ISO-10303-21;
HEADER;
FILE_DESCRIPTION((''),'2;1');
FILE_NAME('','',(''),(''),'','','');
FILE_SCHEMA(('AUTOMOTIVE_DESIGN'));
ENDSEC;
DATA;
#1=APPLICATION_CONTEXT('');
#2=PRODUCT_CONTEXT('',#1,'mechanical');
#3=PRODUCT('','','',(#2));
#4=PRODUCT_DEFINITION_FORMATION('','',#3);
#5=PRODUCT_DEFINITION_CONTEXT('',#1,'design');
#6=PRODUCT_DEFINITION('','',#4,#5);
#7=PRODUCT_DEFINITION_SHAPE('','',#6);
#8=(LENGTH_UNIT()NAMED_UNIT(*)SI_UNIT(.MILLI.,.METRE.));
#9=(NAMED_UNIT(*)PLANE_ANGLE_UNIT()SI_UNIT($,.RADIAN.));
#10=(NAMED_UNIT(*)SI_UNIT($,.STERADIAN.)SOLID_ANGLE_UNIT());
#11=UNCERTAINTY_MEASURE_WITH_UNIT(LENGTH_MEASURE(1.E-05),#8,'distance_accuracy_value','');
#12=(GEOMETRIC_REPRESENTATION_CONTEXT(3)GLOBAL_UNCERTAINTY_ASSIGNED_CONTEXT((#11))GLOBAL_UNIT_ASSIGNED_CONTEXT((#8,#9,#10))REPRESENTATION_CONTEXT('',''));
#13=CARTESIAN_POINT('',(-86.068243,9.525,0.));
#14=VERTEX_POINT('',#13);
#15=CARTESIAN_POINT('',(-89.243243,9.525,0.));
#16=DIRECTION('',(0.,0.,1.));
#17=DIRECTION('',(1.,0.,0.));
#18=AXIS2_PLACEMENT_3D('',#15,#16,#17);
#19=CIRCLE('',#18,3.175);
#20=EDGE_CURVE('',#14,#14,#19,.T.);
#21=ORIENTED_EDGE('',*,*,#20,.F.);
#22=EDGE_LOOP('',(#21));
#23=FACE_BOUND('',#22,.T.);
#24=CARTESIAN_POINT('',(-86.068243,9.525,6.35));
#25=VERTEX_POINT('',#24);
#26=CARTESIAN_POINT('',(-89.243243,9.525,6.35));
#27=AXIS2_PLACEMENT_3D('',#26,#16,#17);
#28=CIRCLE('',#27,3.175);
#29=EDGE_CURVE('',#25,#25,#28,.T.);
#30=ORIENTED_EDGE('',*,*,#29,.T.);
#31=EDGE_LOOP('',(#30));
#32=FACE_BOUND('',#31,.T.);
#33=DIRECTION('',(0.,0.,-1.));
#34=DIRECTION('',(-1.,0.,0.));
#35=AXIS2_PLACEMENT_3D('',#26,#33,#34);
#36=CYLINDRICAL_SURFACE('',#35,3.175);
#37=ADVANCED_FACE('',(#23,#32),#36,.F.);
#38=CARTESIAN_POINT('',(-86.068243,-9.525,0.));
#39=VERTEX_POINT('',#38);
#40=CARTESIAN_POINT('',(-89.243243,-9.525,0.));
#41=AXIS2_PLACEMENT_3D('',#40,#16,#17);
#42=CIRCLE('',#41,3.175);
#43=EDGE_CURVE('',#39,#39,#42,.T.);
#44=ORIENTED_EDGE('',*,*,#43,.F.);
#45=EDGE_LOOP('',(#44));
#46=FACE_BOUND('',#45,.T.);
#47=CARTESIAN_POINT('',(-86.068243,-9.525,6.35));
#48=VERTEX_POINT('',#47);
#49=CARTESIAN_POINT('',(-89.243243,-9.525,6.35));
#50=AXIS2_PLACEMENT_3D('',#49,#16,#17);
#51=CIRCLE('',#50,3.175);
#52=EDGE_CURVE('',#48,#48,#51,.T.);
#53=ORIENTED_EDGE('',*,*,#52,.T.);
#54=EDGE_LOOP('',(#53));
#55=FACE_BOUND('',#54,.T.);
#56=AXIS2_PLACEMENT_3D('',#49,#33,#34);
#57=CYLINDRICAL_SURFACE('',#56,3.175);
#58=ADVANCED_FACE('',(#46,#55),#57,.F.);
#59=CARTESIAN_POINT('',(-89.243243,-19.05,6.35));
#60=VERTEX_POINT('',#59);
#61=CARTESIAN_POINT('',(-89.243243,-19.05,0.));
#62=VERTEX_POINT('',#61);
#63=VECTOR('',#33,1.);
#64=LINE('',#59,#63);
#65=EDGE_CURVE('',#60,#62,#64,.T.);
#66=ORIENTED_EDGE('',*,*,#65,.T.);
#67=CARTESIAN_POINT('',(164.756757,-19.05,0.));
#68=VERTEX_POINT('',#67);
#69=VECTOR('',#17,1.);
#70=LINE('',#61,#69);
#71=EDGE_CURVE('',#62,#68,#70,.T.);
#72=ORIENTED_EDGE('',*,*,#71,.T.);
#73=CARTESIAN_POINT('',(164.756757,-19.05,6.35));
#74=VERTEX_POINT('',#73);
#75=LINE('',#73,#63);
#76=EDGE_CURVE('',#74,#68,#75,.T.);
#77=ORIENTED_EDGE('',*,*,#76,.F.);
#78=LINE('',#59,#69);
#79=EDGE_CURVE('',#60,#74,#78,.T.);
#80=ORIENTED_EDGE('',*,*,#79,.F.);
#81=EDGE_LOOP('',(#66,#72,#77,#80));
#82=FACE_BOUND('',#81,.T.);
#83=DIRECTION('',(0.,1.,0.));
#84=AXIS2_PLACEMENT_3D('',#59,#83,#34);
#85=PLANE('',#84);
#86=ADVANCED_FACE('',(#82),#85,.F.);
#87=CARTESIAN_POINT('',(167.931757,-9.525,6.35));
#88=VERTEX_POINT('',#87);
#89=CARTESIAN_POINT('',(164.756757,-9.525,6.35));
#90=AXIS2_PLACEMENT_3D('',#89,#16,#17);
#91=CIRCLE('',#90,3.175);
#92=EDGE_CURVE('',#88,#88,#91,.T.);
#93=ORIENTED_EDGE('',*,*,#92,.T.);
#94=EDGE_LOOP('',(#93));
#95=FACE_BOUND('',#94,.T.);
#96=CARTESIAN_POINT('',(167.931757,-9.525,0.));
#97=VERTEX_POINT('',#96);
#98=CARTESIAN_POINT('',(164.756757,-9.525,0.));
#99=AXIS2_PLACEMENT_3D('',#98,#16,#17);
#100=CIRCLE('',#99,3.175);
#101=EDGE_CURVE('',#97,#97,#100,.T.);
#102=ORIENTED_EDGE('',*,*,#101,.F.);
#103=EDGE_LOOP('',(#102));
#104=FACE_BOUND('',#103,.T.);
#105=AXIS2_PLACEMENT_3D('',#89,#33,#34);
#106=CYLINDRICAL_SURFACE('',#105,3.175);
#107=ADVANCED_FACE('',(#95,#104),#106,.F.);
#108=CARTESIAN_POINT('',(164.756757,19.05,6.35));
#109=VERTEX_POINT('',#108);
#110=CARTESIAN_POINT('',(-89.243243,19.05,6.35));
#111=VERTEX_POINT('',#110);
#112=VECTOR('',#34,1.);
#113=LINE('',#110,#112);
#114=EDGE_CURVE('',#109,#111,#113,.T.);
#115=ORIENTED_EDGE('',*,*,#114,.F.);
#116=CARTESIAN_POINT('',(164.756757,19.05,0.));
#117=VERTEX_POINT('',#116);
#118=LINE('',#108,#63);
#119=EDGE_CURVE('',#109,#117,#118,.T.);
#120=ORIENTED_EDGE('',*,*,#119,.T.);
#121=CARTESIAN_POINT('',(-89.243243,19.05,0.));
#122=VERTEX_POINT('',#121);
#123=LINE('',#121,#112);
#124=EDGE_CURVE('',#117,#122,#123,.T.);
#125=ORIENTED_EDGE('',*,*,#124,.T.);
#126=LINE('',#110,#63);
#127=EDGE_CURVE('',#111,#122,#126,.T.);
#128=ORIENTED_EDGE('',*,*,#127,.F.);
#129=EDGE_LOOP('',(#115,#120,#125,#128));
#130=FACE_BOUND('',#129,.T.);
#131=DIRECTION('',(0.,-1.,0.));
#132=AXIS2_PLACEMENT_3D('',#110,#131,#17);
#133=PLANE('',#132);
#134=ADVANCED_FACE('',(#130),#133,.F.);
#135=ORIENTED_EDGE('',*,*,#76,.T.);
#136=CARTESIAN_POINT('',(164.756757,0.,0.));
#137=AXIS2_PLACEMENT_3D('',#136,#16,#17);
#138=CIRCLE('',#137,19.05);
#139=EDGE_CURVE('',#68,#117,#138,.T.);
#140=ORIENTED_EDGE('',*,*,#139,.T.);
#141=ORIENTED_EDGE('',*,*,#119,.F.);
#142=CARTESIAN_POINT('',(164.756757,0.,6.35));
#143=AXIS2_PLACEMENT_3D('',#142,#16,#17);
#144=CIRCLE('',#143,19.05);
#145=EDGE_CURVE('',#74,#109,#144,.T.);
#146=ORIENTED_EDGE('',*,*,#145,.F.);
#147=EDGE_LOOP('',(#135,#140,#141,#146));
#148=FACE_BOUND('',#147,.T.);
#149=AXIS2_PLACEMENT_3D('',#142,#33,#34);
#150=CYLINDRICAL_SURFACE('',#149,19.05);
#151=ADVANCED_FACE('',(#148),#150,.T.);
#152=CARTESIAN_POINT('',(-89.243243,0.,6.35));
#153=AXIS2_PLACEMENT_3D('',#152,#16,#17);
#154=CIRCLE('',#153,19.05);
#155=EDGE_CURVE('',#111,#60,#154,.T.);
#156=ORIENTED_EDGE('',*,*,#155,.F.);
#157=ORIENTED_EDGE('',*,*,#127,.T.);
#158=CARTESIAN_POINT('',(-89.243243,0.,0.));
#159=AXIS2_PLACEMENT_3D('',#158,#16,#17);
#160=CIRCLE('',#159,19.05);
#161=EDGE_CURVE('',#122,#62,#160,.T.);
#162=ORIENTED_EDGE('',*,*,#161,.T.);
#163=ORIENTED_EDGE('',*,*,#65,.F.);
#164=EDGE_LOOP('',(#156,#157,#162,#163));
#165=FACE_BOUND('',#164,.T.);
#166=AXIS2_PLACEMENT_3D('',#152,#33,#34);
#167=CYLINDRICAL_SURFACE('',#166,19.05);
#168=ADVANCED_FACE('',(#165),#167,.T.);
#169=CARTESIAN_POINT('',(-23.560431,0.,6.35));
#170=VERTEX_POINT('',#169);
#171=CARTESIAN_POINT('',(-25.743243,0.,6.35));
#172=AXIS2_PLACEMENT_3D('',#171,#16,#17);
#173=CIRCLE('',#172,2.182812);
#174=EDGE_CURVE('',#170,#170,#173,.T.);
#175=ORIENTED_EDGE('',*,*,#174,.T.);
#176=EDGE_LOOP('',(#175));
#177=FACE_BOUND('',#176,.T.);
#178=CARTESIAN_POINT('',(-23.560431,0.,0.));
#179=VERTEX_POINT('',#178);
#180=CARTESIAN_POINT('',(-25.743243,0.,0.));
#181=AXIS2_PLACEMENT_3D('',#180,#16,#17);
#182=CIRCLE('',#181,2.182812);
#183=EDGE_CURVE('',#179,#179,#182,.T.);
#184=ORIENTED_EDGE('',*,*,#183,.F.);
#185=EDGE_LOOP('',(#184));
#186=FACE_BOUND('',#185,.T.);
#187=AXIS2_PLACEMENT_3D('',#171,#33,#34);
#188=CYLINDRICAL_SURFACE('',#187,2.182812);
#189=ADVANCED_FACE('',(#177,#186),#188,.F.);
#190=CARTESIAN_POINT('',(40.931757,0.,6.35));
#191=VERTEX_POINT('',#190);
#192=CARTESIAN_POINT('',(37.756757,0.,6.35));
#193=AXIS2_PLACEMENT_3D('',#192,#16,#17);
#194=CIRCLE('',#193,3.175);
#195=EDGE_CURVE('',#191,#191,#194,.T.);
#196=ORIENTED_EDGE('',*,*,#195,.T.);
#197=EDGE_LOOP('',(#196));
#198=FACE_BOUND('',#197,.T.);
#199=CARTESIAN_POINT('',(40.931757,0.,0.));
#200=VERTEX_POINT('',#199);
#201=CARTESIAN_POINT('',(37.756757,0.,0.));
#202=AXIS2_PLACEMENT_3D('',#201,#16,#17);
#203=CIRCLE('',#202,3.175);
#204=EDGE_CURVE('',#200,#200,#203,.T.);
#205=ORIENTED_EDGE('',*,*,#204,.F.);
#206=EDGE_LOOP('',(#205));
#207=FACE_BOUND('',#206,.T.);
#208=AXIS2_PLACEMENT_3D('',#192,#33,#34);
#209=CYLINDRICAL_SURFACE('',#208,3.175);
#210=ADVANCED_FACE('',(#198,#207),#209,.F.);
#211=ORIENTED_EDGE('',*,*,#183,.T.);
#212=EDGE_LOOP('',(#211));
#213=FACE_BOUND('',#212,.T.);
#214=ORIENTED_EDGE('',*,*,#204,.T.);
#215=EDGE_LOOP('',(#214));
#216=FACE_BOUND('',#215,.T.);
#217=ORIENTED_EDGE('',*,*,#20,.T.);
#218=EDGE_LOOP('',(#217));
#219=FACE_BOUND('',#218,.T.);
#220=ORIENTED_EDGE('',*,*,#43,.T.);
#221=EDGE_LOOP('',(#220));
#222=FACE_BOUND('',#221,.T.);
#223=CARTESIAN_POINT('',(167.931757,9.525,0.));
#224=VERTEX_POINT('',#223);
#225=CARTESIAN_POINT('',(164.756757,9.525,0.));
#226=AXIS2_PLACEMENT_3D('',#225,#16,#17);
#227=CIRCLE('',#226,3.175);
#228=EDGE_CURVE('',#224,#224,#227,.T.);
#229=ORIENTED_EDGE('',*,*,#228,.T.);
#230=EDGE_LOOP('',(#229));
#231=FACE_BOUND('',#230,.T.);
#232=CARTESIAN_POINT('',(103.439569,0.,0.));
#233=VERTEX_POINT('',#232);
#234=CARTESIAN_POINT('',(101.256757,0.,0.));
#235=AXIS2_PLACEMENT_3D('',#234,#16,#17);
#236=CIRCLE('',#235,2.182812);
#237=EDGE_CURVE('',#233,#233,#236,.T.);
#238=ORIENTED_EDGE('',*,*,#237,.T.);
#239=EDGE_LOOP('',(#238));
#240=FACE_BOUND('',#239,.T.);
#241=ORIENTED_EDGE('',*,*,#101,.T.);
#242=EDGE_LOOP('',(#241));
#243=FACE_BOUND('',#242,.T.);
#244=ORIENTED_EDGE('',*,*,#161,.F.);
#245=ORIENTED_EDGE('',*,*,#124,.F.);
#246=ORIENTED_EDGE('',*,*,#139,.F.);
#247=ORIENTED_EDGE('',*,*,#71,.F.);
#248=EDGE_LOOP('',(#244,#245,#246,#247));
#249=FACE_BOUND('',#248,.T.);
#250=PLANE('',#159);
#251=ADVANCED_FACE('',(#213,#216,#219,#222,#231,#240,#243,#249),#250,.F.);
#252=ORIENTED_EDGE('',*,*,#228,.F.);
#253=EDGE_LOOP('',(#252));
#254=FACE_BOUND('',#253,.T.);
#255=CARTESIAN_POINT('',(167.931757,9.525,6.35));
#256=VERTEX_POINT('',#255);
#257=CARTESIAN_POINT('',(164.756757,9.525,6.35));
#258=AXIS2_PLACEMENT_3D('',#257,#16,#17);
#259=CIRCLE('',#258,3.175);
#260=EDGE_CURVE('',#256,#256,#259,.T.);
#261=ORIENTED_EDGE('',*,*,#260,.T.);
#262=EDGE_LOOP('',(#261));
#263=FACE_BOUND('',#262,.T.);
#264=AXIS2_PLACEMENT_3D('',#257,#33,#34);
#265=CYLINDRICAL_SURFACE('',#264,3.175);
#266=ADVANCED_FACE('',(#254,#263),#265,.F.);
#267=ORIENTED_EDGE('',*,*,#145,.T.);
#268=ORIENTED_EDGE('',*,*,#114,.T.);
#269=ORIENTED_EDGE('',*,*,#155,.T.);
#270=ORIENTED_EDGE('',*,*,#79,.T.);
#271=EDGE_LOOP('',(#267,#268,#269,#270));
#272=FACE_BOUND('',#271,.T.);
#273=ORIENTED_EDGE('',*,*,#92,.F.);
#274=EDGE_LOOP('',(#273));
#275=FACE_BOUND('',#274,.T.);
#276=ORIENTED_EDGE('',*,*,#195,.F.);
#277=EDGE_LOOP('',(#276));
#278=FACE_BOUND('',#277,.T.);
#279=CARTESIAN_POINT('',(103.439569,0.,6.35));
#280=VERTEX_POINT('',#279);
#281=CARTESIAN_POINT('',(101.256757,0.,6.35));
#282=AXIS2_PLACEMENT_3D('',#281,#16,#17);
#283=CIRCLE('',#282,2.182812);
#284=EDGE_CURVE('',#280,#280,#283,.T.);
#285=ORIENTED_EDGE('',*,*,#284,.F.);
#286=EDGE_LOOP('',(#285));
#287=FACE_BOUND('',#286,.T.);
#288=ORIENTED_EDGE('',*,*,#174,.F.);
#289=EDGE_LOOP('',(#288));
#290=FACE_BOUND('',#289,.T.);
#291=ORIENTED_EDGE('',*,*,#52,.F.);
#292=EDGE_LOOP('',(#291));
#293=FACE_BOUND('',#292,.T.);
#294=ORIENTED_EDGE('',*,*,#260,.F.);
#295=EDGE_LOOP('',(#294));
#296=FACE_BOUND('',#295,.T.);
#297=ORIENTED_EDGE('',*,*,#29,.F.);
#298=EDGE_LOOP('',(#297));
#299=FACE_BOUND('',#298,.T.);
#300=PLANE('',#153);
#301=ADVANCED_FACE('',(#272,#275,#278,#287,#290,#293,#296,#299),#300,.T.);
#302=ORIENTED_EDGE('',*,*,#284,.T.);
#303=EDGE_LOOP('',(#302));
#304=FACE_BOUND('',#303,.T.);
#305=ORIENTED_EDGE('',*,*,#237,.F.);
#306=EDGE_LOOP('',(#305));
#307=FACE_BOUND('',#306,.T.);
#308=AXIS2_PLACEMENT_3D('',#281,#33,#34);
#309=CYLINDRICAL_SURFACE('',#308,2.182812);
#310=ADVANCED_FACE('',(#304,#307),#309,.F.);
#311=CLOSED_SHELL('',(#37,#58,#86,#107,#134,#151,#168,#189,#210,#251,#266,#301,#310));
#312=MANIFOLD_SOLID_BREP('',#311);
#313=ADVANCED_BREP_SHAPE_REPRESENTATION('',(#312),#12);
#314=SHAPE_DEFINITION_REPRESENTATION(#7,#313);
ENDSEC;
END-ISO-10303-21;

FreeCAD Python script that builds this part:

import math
import FreeCAD as App
import Part
import Sketcher

V = App.Vector
Q = App.Units.Quantity

doc = App.newDocument("Part")
params = doc.addObject("Spreadsheet::Sheet", "Params")
for row, (alias, value) in enumerate([
    ("sketch1_diameter", "0.25 in"),
    ("sketch1_width", "10 in"),
    ("sketch1_radius", "0.75 in"),
    ("sketch1_diameter2", "0.171875 in"),
    ("pad1_length", "0.25 in"),
], start=1):
    params.set(f"A{row}", alias)
    params.set(f"B{row}", "=" + value)
    params.setAlias(f"B{row}", alias)

body = doc.addObject("PartDesign::Body", "Body")

# Sketch on XY plane
sketch1 = body.newObject("Sketcher::SketchObject", "Sketch")
sketch1.AttachmentSupport = (doc.getObject("XY_Plane"), [""])
sketch1.MapMode = "FlatFace"
sketch1.addGeometry([
    Part.LineSegment(V(164.756757, 19.05, 0), V(-89.243243, 19.05, 0)),  # 0
    Part.ArcOfCircle(Part.Circle(V(-89.243243, 0, 0), V(0, 0, 1), 19.05), math.radians(90), math.radians(270)),  # 1
    Part.LineSegment(V(-89.243243, -19.05, 0), V(164.756757, -19.05, 0)),  # 2
    Part.ArcOfCircle(Part.Circle(V(164.756757, 0, 0), V(0, 0, 1), 19.05), math.radians(-90), math.radians(90)),  # 3
    Part.Circle(V(164.756757, -9.525, 0), V(0, 0, 1), 3.175),  # 4
    Part.Circle(V(-89.243243, -9.525, 0), V(0, 0, 1), 3.175),  # 5
    Part.Circle(V(101.256757, 0, 0), V(0, 0, 1), 2.182812),  # 6
    Part.Circle(V(164.756757, 9.525, 0), V(0, 0, 1), 3.175),  # 7
    Part.Circle(V(37.756757, 0, 0), V(0, 0, 1), 3.175),  # 8
    Part.Circle(V(-25.743243, 0, 0), V(0, 0, 1), 2.182812),  # 9
    Part.Circle(V(-89.243243, 9.525, 0), V(0, 0, 1), 3.175),  # 10
], False)
sketch1.addConstraint([
    Sketcher.Constraint("Tangent", 0, 2, 1, 1),
    Sketcher.Constraint("Tangent", 1, 2, 2, 1),
    Sketcher.Constraint("Tangent", 2, 2, 3, 1),
    Sketcher.Constraint("Tangent", 3, 2, 0, 1),
    Sketcher.Constraint("Horizontal", 0),
    Sketcher.Constraint("Horizontal", 2),
    Sketcher.Constraint("Equal", 4, 5),
    Sketcher.Constraint("Equal", 5, 7),
    Sketcher.Constraint("Equal", 7, 8),
    Sketcher.Constraint("Equal", 6, 9),
    Sketcher.Constraint("Equal", 8, 10),
    Sketcher.Constraint("Symmetric", 4, 3, 7, 3, -1),
    Sketcher.Constraint("Symmetric", 5, 3, 10, 3, -1),
    Sketcher.Constraint("PointOnObject", 1, 3, -1),
    Sketcher.Constraint("PointOnObject", 6, 3, -1),
    Sketcher.Constraint("PointOnObject", 8, 3, -1),
    Sketcher.Constraint("PointOnObject", 9, 3, -1),
    Sketcher.Constraint("Horizontal", 4, 3, 5, 3),
    Sketcher.Constraint("Vertical", 3, 3, 4, 3),
    Sketcher.Constraint("Vertical", 1, 3, 5, 3),
    Sketcher.Constraint("Diameter", 4, Q("0.25 in")),
    Sketcher.Constraint("DistanceX", 0, 2, 0, 1, Q("10 in")),
    Sketcher.Constraint("Radius", 1, Q("0.75 in")),
    Sketcher.Constraint("Diameter", 6, Q("0.171875 in")),
    Sketcher.Constraint("DistanceX", 1, 3, 8, 3, Q("5 in")),
    Sketcher.Constraint("DistanceX", 9, 3, 6, 3, Q("5 in")),
    Sketcher.Constraint("DistanceX", 6, 3, 3, 3, Q("2.5 in")),
    Sketcher.Constraint("DistanceY", 4, 3, 7, 3, Q("0.75 in")),
    Sketcher.Constraint("DistanceX", 1, 3, -1, 1, 89.243243),
])
sketch1.setExpression("Constraints[20]", "Params.sketch1_diameter")
sketch1.setExpression("Constraints[21]", "Params.sketch1_width")
sketch1.setExpression("Constraints[22]", "Params.sketch1_radius")
sketch1.setExpression("Constraints[23]", "Params.sketch1_diameter2")
pad1 = body.newObject("PartDesign::Pad", "Pad")
pad1.Profile = sketch1
pad1.setExpression("Length", "Params.pad1_length")

doc.recompute()
